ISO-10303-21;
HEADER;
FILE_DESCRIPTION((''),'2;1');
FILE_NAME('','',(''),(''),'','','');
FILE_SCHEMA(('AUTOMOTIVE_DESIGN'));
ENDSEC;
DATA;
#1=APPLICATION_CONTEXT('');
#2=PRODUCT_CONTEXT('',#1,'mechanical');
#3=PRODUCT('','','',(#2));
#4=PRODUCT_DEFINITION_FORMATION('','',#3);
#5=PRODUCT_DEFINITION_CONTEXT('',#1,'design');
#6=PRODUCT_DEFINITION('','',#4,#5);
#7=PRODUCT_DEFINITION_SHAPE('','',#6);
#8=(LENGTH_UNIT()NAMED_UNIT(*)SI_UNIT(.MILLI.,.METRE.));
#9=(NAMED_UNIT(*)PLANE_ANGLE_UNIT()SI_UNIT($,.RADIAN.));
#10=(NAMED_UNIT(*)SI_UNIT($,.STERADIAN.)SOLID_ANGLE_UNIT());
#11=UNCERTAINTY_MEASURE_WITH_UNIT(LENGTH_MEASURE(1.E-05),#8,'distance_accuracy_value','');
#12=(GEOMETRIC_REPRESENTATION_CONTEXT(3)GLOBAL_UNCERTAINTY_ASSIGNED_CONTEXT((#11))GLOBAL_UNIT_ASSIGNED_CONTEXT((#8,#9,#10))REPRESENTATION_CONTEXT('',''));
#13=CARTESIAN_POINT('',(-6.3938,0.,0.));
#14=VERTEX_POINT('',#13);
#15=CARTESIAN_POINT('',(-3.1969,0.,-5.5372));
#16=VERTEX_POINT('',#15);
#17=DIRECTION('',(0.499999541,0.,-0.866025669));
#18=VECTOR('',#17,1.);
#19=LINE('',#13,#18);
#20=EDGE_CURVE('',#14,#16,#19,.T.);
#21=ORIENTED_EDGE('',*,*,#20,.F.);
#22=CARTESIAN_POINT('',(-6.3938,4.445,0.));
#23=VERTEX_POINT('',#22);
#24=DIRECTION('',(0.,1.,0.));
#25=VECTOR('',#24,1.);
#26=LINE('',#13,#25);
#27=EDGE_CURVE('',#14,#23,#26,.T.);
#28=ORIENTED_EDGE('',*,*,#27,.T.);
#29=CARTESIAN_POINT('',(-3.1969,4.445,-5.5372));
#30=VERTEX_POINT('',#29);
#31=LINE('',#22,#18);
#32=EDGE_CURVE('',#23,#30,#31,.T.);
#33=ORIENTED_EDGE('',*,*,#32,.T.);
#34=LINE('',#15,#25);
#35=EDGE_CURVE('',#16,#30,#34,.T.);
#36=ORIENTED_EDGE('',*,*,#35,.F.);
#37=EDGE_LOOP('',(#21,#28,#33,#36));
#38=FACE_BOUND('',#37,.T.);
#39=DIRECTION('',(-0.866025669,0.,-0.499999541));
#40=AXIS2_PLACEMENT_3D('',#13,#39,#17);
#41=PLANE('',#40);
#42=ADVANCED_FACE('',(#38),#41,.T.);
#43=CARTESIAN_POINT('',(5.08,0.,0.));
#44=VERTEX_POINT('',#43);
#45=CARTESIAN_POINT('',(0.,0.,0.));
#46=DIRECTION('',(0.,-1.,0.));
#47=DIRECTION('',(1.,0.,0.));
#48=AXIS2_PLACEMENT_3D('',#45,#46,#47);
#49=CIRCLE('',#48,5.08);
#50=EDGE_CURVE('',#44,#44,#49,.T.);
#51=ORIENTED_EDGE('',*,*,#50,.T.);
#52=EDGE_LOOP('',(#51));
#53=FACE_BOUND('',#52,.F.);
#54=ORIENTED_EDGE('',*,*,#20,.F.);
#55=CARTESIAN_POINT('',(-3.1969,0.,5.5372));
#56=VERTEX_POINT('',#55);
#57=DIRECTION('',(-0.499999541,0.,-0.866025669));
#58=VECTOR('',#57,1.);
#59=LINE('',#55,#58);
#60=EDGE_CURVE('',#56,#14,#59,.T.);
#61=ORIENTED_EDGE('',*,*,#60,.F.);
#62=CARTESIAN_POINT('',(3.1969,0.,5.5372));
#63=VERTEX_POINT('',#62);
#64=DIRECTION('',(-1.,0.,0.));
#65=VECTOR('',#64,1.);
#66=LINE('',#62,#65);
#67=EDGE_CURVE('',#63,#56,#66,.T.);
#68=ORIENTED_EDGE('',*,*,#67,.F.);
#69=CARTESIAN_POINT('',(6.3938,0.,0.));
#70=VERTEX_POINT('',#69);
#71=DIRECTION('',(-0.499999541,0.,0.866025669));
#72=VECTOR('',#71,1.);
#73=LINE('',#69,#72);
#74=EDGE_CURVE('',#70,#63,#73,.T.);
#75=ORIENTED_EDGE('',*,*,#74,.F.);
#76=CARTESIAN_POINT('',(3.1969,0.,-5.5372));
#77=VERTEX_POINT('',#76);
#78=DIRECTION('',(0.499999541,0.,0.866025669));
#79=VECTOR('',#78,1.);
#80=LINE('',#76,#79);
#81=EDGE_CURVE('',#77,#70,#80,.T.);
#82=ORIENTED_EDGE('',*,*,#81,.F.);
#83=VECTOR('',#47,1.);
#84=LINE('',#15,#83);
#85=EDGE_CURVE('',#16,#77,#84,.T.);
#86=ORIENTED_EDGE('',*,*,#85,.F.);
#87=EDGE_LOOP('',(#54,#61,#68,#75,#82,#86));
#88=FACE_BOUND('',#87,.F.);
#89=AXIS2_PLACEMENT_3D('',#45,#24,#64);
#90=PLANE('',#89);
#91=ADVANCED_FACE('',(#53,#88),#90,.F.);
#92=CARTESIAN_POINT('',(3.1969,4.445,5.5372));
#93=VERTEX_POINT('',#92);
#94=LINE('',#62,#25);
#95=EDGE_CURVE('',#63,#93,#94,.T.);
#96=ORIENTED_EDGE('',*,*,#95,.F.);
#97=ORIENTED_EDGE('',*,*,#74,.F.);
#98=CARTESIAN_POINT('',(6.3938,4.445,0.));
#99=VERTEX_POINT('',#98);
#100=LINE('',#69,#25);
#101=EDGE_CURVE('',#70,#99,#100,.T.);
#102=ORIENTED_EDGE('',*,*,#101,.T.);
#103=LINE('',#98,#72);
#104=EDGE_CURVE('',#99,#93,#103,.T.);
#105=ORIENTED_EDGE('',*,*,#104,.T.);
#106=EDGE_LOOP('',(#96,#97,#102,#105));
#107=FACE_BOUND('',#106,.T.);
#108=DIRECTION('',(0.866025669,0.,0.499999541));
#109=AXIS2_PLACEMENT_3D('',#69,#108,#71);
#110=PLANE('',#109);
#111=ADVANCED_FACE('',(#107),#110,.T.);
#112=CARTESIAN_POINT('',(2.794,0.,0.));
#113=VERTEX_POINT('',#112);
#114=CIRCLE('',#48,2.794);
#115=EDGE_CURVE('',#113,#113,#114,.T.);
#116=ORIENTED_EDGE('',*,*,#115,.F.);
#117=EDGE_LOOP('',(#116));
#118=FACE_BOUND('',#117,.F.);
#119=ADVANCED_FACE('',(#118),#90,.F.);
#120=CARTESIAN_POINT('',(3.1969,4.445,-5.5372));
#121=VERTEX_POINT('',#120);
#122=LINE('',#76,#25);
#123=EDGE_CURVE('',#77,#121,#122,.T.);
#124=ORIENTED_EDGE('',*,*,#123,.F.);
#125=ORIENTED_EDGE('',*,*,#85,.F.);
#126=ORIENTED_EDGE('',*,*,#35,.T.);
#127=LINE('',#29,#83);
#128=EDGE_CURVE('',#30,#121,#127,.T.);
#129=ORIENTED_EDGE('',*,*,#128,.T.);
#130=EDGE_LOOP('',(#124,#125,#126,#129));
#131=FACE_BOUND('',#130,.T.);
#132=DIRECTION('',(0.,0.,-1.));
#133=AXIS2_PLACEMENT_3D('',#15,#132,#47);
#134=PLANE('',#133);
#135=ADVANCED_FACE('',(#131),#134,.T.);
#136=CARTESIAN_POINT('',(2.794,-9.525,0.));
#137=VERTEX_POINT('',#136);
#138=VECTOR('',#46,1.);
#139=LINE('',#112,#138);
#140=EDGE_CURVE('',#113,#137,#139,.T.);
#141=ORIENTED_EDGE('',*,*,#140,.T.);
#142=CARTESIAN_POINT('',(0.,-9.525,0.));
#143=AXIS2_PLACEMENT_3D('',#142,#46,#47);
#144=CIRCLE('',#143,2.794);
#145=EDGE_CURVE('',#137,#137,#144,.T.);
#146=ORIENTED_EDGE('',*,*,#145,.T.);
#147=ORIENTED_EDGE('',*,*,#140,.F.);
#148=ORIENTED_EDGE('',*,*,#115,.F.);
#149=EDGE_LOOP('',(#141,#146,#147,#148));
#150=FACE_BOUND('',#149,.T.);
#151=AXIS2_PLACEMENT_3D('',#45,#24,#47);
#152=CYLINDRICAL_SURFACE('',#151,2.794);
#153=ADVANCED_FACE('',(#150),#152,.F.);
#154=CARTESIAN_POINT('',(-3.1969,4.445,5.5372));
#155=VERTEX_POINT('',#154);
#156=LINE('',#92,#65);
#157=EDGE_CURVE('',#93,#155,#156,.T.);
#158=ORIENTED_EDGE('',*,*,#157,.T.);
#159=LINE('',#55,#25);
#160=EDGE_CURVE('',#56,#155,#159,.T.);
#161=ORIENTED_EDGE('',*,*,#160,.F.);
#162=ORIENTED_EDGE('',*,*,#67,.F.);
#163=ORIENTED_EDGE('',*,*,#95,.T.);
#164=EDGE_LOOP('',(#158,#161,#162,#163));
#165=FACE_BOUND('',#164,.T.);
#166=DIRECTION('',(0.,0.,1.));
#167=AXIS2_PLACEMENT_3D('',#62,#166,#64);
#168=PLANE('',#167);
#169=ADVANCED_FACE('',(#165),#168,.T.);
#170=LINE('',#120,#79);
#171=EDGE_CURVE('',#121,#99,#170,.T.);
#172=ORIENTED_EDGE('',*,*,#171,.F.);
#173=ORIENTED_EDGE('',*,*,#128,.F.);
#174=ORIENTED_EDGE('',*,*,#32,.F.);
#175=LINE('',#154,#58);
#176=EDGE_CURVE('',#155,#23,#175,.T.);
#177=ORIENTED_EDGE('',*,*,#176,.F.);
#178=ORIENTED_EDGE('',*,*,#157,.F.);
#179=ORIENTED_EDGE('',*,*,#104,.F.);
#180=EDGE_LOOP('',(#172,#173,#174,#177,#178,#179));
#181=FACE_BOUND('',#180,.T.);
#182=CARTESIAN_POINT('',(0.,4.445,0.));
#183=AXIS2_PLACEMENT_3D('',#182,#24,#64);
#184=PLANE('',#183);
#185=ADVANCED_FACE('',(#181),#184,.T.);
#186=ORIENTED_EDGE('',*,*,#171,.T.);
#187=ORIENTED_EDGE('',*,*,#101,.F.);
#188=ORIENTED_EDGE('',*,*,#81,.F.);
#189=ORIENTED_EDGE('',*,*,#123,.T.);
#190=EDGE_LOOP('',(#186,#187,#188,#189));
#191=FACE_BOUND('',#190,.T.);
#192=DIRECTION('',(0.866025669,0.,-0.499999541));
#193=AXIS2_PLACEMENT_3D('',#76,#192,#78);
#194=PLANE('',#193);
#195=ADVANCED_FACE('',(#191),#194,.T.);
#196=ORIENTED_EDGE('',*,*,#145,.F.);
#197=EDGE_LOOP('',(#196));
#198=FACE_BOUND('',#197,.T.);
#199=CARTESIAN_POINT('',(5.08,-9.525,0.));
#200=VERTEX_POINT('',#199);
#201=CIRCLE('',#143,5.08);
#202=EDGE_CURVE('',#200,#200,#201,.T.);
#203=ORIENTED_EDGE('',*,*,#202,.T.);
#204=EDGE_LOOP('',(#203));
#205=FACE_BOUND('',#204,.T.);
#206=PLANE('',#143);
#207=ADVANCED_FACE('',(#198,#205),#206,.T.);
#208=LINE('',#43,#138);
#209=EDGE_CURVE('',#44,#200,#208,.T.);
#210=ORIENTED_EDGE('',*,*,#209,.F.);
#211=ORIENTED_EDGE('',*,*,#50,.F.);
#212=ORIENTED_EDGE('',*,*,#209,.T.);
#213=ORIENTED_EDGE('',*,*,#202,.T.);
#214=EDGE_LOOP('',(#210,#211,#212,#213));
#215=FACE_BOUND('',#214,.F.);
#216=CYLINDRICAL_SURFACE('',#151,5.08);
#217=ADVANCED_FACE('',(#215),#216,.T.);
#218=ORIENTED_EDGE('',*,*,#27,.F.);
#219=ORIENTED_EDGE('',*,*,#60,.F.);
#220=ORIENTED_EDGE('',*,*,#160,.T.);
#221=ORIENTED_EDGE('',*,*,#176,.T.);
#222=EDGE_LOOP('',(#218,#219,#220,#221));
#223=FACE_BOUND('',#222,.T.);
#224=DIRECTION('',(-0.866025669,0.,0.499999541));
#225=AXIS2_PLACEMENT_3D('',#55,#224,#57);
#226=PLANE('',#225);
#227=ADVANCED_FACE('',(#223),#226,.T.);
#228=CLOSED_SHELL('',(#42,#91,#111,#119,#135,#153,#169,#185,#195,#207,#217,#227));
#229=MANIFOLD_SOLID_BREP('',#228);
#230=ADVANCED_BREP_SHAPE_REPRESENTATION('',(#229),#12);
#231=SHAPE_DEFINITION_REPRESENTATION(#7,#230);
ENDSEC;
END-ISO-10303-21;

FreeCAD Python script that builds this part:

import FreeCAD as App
import Part
import Sketcher
Q = App.Units.Quantity


def add_polygon(sketch, points):
    """Adds a closed chain of lines whose ends are joined by coincident constraints."""
    first, n = sketch.GeometryCount, len(points)
    for a, b in zip(points, points[1:] + points[:1]):
        sketch.addGeometry(Part.LineSegment(App.Vector(*a, 0), App.Vector(*b, 0)), False)
    for i in range(n):
        sketch.addConstraint(Sketcher.Constraint("Coincident", first + i, 2, first + (i + 1) % n, 1))

doc = App.newDocument("Part")
body = doc.addObject("PartDesign::Body", "Body")

# Sketch on XZ plane
sketch1 = body.newObject("Sketcher::SketchObject", "Sketch")
sketch1.AttachmentSupport = (doc.getObject("XZ_Plane"), [""])
sketch1.MapMode = "FlatFace"
add_polygon(sketch1, [(6, 0), (3, -6), (-3, -6), (-6, 0), (-3, 6), (3, 6)])  # lines 0-5
sketch1.addConstraint([
    Sketcher.Constraint("Horizontal", 1),
    Sketcher.Constraint("Horizontal", 4),
    Sketcher.Constraint("Symmetric", 0, 2, 3, 2, -1, 1),
    Sketcher.Constraint("Symmetric", 2, 2, 5, 2, -1, 1),
    Sketcher.Constraint("PointOnObject", 2, 2, -1),
    Sketcher.Constraint("Parallel", 2, 5),
    Sketcher.Constraint("Vertical", 1, 2, 3, 2),
    Sketcher.Constraint("Angle", 0, Q("-120 deg")),
    Sketcher.Constraint("DistanceY", 1, 2, 3, 2, Q("0.436 in")),
    Sketcher.Constraint("DistanceX", 1, 2, 1, 1, Q("6.3938 mm")),
])
pad1 = body.newObject("PartDesign::Pad", "Pad")
pad1.Profile = sketch1
pad1.Length = Q("0.175 in")
pad1.Reversed = True

# Sketch on XZ plane
sketch2 = body.newObject("Sketcher::SketchObject", "Sketch001")
sketch2.AttachmentSupport = (doc.getObject("XZ_Plane"), [""])
sketch2.MapMode = "FlatFace"
sketch2.addGeometry([
    Part.Circle(App.Vector(0, 0, 0), App.Vector(0, 0, 1), 5.1),
    Part.Circle(App.Vector(0, 0, 0), App.Vector(0, 0, 1), 2.8),
], False)
sketch2.addConstraint([
    Sketcher.Constraint("Coincident", 0, 3, -1, 1),
    Sketcher.Constraint("Coincident", 1, 3, -1, 1),
    Sketcher.Constraint("Diameter", 0, Q("0.4 in")),
    Sketcher.Constraint("Diameter", 1, Q("0.22 in")),
])
pad2 = body.newObject("PartDesign::Pad", "Pad001")
pad2.Profile = sketch2
pad2.Length = Q("0.375 in")

doc.recompute()
